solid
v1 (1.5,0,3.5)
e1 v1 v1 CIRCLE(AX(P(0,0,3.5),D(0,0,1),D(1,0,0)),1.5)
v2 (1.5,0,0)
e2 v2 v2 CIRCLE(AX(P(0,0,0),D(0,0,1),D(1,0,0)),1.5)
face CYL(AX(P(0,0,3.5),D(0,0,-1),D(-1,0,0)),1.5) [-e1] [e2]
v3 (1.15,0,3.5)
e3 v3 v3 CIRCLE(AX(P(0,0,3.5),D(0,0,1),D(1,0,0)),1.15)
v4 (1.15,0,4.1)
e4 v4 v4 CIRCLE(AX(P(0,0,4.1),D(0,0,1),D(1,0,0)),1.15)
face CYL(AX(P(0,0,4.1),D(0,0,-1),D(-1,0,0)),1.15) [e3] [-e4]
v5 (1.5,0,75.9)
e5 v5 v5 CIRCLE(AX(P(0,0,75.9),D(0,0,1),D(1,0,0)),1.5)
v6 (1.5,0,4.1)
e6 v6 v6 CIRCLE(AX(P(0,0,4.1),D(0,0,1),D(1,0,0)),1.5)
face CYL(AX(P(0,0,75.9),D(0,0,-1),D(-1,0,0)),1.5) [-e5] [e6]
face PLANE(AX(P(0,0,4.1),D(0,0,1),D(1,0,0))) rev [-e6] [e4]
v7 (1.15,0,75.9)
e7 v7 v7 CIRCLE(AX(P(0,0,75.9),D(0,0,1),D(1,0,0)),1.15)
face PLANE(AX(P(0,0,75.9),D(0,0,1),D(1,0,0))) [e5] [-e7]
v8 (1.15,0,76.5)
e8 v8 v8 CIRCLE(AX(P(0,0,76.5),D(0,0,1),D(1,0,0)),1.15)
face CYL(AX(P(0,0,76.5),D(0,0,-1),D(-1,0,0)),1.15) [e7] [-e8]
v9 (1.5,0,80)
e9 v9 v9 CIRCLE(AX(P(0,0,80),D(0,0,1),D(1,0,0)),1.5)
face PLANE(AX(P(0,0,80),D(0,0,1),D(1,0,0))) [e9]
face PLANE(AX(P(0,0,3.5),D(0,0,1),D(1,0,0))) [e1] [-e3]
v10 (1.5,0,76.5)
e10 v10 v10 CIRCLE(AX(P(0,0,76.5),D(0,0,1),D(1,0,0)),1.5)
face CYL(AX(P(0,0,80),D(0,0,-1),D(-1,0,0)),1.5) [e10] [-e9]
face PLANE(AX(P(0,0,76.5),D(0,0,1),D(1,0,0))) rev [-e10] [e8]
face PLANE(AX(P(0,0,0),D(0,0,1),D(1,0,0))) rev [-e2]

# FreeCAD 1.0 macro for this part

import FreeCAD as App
import Part
import Sketcher
from FreeCAD import Vector
Q = App.Units.Quantity

doc = App.newDocument("Part")
body = doc.addObject("PartDesign::Body", "Body")

# Sketch on XY plane
sketch1 = doc.addObject("Sketcher::SketchObject", "Sketch")
body.addObject(sketch1)
sketch1.AttachmentSupport = (doc.XY_Plane, [""])
sketch1.MapMode = "FlatFace"
sketch1.addGeometry(Part.Circle(Vector(0, 0, 0), Vector(0, 0, 1), 1.5), False)
sketch1.addConstraint([
    Sketcher.Constraint("Coincident", 0, 3, -1, 1),
    Sketcher.Constraint("Diameter", 0, Q("3 mm")),
])
pad1 = doc.addObject("PartDesign::Pad", "Pad")
body.addObject(pad1)
pad1.Profile = sketch1
pad1.Length = 3.5

# Sketch on XY plane
sketch2 = doc.addObject("Sketcher::SketchObject", "Sketch001")
body.addObject(sketch2)
sketch2.AttachmentSupport = (doc.XY_Plane, [""])
sketch2.MapMode = "FlatFace"
sketch2.AttachmentOffset = App.Placement(Vector(0, 0, 3.5), App.Rotation())
sketch2.addGeometry(Part.Circle(Vector(0, 0, 0), Vector(0, 0, 1), 1.15), False)
sketch2.addConstraint([
    Sketcher.Constraint("Coincident", 0, 3, -1, 1),
    Sketcher.Constraint("Diameter", 0, Q("2.3 mm")),
])
pad2 = doc.addObject("PartDesign::Pad", "Pad001")
body.addObject(pad2)
pad2.Profile = sketch2
pad2.Length = 0.6

# Sketch on XY plane
sketch3 = doc.addObject("Sketcher::SketchObject", "Sketch002")
body.addObject(sketch3)
sketch3.AttachmentSupport = (doc.XY_Plane, [""])
sketch3.MapMode = "FlatFace"
sketch3.AttachmentOffset = App.Placement(Vector(0, 0, 4.1), App.Rotation())
sketch3.addGeometry(Part.Circle(Vector(0, 0, 0), Vector(0, 0, 1), 1.5), False)
sketch3.addConstraint([
    Sketcher.Constraint("Coincident", 0, 3, -1, 1),
    Sketcher.Constraint("Diameter", 0, Q("3 mm")),
])
pad3 = doc.addObject("PartDesign::Pad", "Pad002")
body.addObject(pad3)
pad3.Profile = sketch3
pad3.Length = 71.8

# Sketch on XY plane
sketch4 = doc.addObject("Sketcher::SketchObject", "Sketch003")
body.addObject(sketch4)
sketch4.AttachmentSupport = (doc.XY_Plane, [""])
sketch4.MapMode = "FlatFace"
sketch4.AttachmentOffset = App.Placement(Vector(0, 0, 75.9), App.Rotation())
sketch4.addGeometry(Part.Circle(Vector(0, 0, 0), Vector(0, 0, 1), 1.15), False)
sketch4.addConstraint([
    Sketcher.Constraint("Coincident", 0, 3, -1, 1),
    Sketcher.Constraint("Diameter", 0, Q("2.3 mm")),
])
pad4 = doc.addObject("PartDesign::Pad", "Pad003")
body.addObject(pad4)
pad4.Profile = sketch4
pad4.Length = 0.6

# Sketch on XY plane
sketch5 = doc.addObject("Sketcher::SketchObject", "Sketch004")
body.addObject(sketch5)
sketch5.AttachmentSupport = (doc.XY_Plane, [""])
sketch5.MapMode = "FlatFace"
sketch5.AttachmentOffset = App.Placement(Vector(0, 0, 76.5), App.Rotation())
sketch5.addGeometry(Part.Circle(Vector(0, 0, 0), Vector(0, 0, 1), 1.5), False)
sketch5.addConstraint([
    Sketcher.Constraint("Coincident", 0, 3, -1, 1),
    Sketcher.Constraint("Diameter", 0, Q("3 mm")),
])
pad5 = doc.addObject("PartDesign::Pad", "Pad004")
body.addObject(pad5)
pad5.Profile = sketch5
pad5.Length = 3.5

doc.recompute()
